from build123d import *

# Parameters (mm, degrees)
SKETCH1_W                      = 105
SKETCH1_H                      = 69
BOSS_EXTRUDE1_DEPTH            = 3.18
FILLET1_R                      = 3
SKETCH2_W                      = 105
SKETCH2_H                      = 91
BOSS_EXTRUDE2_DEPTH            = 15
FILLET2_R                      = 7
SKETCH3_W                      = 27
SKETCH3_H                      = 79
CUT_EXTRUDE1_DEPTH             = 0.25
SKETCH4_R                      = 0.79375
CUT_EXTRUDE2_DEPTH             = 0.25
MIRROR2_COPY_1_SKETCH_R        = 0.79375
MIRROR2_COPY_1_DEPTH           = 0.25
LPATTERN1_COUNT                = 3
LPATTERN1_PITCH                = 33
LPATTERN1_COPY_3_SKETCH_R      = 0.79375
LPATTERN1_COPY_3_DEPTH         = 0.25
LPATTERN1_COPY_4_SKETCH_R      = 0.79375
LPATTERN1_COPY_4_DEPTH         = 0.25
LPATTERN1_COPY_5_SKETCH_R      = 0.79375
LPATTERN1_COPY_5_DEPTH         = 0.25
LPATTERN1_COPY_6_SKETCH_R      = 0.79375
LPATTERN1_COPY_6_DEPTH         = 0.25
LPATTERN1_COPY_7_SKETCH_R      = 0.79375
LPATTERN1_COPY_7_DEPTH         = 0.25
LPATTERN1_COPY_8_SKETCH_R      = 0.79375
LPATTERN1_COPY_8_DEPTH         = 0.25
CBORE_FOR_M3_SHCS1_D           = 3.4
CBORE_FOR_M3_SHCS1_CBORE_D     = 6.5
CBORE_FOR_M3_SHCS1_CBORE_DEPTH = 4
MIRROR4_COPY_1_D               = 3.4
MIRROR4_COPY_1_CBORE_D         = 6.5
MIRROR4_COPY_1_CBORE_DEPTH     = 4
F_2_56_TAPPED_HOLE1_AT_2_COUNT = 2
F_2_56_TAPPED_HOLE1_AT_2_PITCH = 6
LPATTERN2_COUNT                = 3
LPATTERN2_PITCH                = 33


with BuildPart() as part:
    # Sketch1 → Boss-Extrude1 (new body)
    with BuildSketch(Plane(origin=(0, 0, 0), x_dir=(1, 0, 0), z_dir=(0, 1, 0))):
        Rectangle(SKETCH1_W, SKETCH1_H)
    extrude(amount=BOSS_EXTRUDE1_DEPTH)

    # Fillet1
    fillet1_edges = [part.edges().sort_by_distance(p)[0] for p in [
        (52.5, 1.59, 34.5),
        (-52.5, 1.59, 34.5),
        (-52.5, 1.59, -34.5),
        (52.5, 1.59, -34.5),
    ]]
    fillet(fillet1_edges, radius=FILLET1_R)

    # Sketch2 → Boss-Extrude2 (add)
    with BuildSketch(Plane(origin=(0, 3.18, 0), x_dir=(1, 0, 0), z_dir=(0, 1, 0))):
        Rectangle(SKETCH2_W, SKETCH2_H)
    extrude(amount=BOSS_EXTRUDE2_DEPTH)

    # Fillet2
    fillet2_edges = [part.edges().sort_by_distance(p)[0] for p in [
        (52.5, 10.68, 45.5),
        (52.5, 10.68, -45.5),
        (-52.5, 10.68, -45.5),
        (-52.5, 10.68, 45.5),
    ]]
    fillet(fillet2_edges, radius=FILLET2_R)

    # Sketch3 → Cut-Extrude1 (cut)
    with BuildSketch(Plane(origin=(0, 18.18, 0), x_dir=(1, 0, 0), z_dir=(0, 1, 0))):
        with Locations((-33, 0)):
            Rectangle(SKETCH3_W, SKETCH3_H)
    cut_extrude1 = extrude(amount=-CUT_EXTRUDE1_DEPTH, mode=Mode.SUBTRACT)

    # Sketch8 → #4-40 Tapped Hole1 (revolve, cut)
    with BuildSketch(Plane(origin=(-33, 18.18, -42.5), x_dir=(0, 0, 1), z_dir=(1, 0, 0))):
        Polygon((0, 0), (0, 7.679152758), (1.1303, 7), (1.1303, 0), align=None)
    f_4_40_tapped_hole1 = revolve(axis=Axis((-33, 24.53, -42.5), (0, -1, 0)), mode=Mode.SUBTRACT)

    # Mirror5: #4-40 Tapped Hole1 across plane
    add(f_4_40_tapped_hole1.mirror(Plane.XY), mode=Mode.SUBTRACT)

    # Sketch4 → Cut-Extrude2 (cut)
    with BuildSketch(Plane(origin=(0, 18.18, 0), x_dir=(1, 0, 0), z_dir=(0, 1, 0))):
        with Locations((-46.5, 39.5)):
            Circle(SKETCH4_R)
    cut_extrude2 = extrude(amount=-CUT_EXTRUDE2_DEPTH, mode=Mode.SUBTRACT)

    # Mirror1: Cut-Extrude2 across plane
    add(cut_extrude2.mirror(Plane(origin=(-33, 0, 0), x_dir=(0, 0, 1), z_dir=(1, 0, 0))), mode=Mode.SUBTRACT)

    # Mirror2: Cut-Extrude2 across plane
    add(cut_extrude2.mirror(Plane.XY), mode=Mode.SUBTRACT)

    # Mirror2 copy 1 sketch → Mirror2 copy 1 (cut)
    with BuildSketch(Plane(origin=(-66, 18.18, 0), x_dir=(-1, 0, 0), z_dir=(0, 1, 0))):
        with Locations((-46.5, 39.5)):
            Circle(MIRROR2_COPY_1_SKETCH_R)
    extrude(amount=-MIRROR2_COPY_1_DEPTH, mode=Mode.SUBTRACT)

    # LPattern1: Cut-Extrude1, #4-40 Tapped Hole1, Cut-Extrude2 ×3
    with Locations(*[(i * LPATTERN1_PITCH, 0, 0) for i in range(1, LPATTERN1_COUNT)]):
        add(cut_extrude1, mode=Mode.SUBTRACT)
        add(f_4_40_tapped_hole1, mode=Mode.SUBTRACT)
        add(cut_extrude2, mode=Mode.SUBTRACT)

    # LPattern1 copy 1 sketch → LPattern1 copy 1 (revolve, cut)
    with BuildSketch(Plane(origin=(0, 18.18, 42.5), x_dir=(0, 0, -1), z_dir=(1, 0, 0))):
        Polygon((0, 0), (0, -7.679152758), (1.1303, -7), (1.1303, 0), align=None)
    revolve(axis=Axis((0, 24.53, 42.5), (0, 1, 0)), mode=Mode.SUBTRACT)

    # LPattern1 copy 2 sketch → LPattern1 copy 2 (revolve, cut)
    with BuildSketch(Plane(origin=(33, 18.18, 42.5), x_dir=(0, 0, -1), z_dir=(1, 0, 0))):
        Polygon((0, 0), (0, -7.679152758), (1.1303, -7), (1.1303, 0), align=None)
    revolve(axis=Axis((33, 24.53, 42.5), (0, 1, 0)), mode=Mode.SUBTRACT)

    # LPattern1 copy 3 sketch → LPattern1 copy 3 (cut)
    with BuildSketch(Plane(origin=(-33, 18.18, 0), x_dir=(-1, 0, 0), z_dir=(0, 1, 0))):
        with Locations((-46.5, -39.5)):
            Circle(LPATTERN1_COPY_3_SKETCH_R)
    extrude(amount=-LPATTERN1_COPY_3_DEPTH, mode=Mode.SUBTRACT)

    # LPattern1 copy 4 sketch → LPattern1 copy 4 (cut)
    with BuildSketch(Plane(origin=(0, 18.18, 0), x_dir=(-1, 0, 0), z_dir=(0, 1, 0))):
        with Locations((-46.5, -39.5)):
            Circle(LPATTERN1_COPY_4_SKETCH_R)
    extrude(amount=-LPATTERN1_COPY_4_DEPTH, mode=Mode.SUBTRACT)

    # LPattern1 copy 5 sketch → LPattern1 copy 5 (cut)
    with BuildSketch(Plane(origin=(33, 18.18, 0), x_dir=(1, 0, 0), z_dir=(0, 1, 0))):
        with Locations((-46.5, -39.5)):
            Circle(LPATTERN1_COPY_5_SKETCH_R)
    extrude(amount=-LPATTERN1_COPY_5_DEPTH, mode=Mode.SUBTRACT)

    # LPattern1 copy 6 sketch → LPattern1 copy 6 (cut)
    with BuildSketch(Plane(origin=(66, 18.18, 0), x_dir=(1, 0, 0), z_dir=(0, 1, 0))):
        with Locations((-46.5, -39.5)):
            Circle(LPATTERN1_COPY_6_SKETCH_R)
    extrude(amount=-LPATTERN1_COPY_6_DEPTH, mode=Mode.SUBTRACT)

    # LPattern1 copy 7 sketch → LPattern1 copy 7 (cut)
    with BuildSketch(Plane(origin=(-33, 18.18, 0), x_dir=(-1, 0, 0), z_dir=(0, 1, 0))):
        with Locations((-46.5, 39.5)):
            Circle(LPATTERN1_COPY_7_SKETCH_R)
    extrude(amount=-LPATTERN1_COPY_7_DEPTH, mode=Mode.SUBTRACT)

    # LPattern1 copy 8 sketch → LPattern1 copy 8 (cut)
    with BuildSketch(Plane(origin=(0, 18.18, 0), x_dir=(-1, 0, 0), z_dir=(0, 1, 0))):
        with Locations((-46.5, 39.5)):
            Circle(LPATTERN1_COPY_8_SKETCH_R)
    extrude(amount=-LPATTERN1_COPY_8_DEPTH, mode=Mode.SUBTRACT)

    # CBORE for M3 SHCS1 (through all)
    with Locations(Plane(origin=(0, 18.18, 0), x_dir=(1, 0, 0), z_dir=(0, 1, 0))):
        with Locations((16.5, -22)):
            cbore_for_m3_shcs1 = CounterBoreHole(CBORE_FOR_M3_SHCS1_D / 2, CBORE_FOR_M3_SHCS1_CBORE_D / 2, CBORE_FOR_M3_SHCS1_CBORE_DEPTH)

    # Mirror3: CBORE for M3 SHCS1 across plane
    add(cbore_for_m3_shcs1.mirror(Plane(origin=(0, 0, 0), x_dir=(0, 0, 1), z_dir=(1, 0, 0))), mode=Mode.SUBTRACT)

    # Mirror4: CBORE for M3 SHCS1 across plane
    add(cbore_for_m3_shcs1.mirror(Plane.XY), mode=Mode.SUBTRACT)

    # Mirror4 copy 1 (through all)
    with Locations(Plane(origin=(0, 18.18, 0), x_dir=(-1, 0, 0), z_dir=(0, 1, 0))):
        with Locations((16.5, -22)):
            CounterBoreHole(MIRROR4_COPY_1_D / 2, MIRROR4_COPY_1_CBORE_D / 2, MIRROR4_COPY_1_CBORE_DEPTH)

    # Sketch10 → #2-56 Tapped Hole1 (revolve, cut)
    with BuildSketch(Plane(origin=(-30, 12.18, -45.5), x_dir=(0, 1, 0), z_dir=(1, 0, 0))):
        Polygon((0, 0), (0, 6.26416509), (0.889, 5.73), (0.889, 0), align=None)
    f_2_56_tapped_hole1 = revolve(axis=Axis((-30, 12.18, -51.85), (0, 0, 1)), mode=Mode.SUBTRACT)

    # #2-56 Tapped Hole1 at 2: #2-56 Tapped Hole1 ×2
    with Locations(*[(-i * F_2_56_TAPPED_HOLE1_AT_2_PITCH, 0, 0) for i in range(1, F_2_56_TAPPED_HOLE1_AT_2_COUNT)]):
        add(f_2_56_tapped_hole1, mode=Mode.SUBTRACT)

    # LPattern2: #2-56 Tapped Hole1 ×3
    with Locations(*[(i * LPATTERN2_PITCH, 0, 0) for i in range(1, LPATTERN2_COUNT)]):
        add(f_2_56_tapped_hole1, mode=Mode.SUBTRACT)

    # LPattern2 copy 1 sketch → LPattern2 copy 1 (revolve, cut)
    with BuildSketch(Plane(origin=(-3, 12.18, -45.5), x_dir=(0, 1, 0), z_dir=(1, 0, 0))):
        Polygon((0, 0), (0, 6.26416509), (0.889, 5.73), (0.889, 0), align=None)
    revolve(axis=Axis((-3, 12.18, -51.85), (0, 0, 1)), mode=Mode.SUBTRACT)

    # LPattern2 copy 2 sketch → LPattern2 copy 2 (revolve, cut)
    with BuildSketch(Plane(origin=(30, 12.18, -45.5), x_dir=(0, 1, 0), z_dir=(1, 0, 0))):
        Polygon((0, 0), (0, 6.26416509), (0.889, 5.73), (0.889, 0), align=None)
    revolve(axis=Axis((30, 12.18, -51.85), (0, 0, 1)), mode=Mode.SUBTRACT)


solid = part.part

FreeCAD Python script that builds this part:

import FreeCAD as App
import Part
import Sketcher

V = App.Vector
Q = App.Units.Quantity


def edges_at(feature, points):
    """Names of the edges that pass closest to the given points."""
    edges = feature.Shape.Edges
    near = lambda p: min(range(len(edges)), key=lambda i: edges[i].distToShape(Part.Vertex(*p))[0])
    return sorted({f"Edge{near(p) + 1}" for p in points})


def add_polygon(sketch, points):
    """Adds a closed chain of lines whose ends are joined by coincident constraints."""
    first, n = sketch.GeometryCount, len(points)
    for a, b in zip(points, points[1:] + points[:1]):
        sketch.addGeometry(Part.LineSegment(App.Vector(*a, 0), App.Vector(*b, 0)), False)
    for i in range(n):
        sketch.addConstraint(Sketcher.Constraint("Coincident", first + i, 2, first + (i + 1) % n, 1))

doc = App.newDocument("Part")
body = doc.addObject("PartDesign::Body", "Body")

# Sketch on XZ plane
sketch1 = doc.addObject("Sketcher::SketchObject", "Sketch")
body.addObject(sketch1)
sketch1.AttachmentSupport = (doc.XZ_Plane, [""])
sketch1.MapMode = "FlatFace"
add_polygon(sketch1, [(-52, -34), (-52, 34), (52, 34), (52, -34)])  # lines 0-3
sketch1.addConstraint(Sketcher.Constraint("Vertical", 0))
sketch1.addConstraint(Sketcher.Constraint("Horizontal", 1))
sketch1.addConstraint(Sketcher.Constraint("Vertical", 2))
sketch1.addConstraint(Sketcher.Constraint("Horizontal", 3))
sketch1.addConstraint(Sketcher.Constraint("Symmetric", 0, 2, 2, 2, -1, 1))
sketch1.addConstraint(Sketcher.Constraint("DistanceX", 1, 1, 1, 2, 105.0))
sketch1.addConstraint(Sketcher.Constraint("DistanceY", 0, 1, 0, 2, 69.0))
pad1 = doc.addObject("PartDesign::Pad", "Pad")
body.addObject(pad1)
pad1.Profile = sketch1
pad1.Length = 3.18
pad1.Reversed = True
doc.recompute()

fillet = doc.addObject("PartDesign::Fillet", "Fillet")
body.addObject(fillet)
fillet.Base = (pad1, edges_at(pad1, [
    (52.5, 1.59, 34.5),
    (-52.5, 1.59, 34.5),
    (-52.5, 1.59, -34.5),
    (52.5, 1.59, -34.5),
]))
fillet.Radius = 3

# Sketch on XZ plane
sketch2 = doc.addObject("Sketcher::SketchObject", "Sketch001")
body.addObject(sketch2)
sketch2.AttachmentSupport = (doc.XZ_Plane, [""])
sketch2.MapMode = "FlatFace"
sketch2.AttachmentOffset = App.Placement(V(0, 0, -3.18), App.Rotation())
add_polygon(sketch2, [(-52, -46), (-52, 46), (52, 46), (52, -46)])  # lines 0-3
sketch2.addConstraint(Sketcher.Constraint("Vertical", 0))
sketch2.addConstraint(Sketcher.Constraint("Horizontal", 1))
sketch2.addConstraint(Sketcher.Constraint("Vertical", 2))
sketch2.addConstraint(Sketcher.Constraint("Horizontal", 3))
sketch2.addConstraint(Sketcher.Constraint("Symmetric", 0, 2, 2, 2, -1, 1))
sketch2.addConstraint(Sketcher.Constraint("DistanceX", 1, 1, 1, 2, 105.0))
sketch2.addConstraint(Sketcher.Constraint("DistanceY", 0, 1, 0, 2, 91.0))
pad2 = doc.addObject("PartDesign::Pad", "Pad001")
body.addObject(pad2)
pad2.Profile = sketch2
pad2.Length = 15
pad2.Reversed = True
doc.recompute()

fillet2 = doc.addObject("PartDesign::Fillet", "Fillet001")
body.addObject(fillet2)
fillet2.Base = (pad2, edges_at(pad2, [
    (52.5, 10.68, 45.5),
    (52.5, 10.68, -45.5),
    (-52.5, 10.68, -45.5),
    (-52.5, 10.68, 45.5),
]))
fillet2.Radius = 7

# Sketch on XZ plane
sketch3 = doc.addObject("Sketcher::SketchObject", "Sketch002")
body.addObject(sketch3)
sketch3.AttachmentSupport = (doc.XZ_Plane, [""])
sketch3.MapMode = "FlatFace"
sketch3.AttachmentOffset = App.Placement(V(0, 0, -18.18), App.Rotation())
add_polygon(sketch3, [(-46, -40), (-46, 40), (-20, 40), (-20, -40)])  # lines 0-3
sketch3.addConstraint(Sketcher.Constraint("Vertical", 0))
sketch3.addConstraint(Sketcher.Constraint("Horizontal", 1))
sketch3.addConstraint(Sketcher.Constraint("Vertical", 2))
sketch3.addConstraint(Sketcher.Constraint("Horizontal", 3))
sketch3.addConstraint(Sketcher.Constraint("DistanceX", 1, 1, 1, 2, 27.0))
sketch3.addConstraint(Sketcher.Constraint("DistanceY", 0, 1, 0, 2, 79.0))
sketch3.addConstraint(Sketcher.Constraint("DistanceX", 0, 2, -1, 1, 46.5))
sketch3.addConstraint(Sketcher.Constraint("DistanceY", -1, 1, 0, 2, 39.5))
pocket1 = doc.addObject("PartDesign::Pocket", "Pocket")
body.addObject(pocket1)
pocket1.Profile = sketch3
pocket1.Length = 0.25
pocket1.Reversed = True

# Sketch on YZ plane
sketch4 = doc.addObject("Sketcher::SketchObject", "Sketch003")
body.addObject(sketch4)
sketch4.AttachmentSupport = (doc.YZ_Plane, [""])
sketch4.MapMode = "FlatFace"
sketch4.AttachmentOffset = App.Placement(V(0, 0, -33), App.Rotation())
add_polygon(sketch4, [(10.5, -42.5), (18.2, -42.5), (18.2, -41.4), (11.2, -41.4)])  # lines 0-3
sketch4.addGeometry(Part.LineSegment(V(18.2, -42.5, 0), V(10.5, -42.5, 0)), True)  # axis
sketch4.addConstraint(Sketcher.Constraint("Horizontal", 0))
sketch4.addConstraint(Sketcher.Constraint("Vertical", 1))
sketch4.addConstraint(Sketcher.Constraint("Horizontal", 2))
sketch4.addConstraint(Sketcher.Constraint("Horizontal", 4))
sketch4.addConstraint(Sketcher.Constraint("Coincident", 4, 1, 0, 2))
sketch4.addConstraint(Sketcher.Constraint("Equal", 0, 4))
sketch4.addConstraint(Sketcher.Constraint("DistanceX", 2, 2, 2, 1, 7.0))
sketch4.addConstraint(Sketcher.Constraint("Angle", 3, Q("-121 deg")))
sketch4.addConstraint(Sketcher.Constraint("DistanceY", 0, 2, -1, 1, 42.5))
sketch4.addConstraint(Sketcher.Constraint("DistanceX", -1, 1, 0, 2, 18.18))
sketch4.addConstraint(Sketcher.Constraint("DistanceY", 1, 1, 1, 2, 1.1303))
groove = doc.addObject("PartDesign::Groove", "Groove")
body.addObject(groove)
groove.Profile = sketch4
groove.ReferenceAxis = (sketch4, ["Axis0"])
groove.Angle = 360
doc.recompute()

mirrored = doc.addObject("PartDesign::Mirrored", "Mirrored")
body.addObject(mirrored)
mirrored.Originals = [groove]
mirrored.MirrorPlane = (doc.XY_Plane, [""])
body.Tip = mirrored

# Sketch on XZ plane
sketch5 = doc.addObject("Sketcher::SketchObject", "Sketch004")
body.addObject(sketch5)
sketch5.AttachmentSupport = (doc.XZ_Plane, [""])
sketch5.MapMode = "FlatFace"
sketch5.AttachmentOffset = App.Placement(V(0, 0, -18.18), App.Rotation())
sketch5.addGeometry(Part.Circle(V(-46.5, -39.5, 0), V(0, 0, 1), 0.8), False)
sketch5.addConstraint(Sketcher.Constraint("Diameter", 0, 1.5875))
sketch5.addConstraint(Sketcher.Constraint("DistanceX", 0, 3, -1, 1, 46.5))
sketch5.addConstraint(Sketcher.Constraint("DistanceY", 0, 3, -1, 1, 39.5))
pocket2 = doc.addObject("PartDesign::Pocket", "Pocket001")
body.addObject(pocket2)
pocket2.Profile = sketch5
pocket2.Length = 0.25
pocket2.Reversed = True
doc.recompute()

datumplane = doc.addObject("PartDesign::Plane", "DatumPlane")
body.addObject(datumplane)
datumplane.AttachmentSupport = (doc.YZ_Plane, [""])
datumplane.MapMode = "FlatFace"
datumplane.AttachmentOffset = App.Placement(V(0, 0, -33), App.Rotation())
mirrored2 = doc.addObject("PartDesign::Mirrored", "Mirrored001")
body.addObject(mirrored2)
mirrored2.Originals = [pocket2]
mirrored2.MirrorPlane = (datumplane, [""])
body.Tip = mirrored2
doc.recompute()

mirrored3 = doc.addObject("PartDesign::Mirrored", "Mirrored002")
body.addObject(mirrored3)
mirrored3.Originals = [pocket2]
mirrored3.MirrorPlane = (doc.XY_Plane, [""])
body.Tip = mirrored3

# Sketch on XZ plane
sketch6 = doc.addObject("Sketcher::SketchObject", "Sketch005")
body.addObject(sketch6)
sketch6.AttachmentSupport = (doc.XZ_Plane, [""])
sketch6.MapMode = "FlatFace"
sketch6.AttachmentOffset = App.Placement(V(0, 0, -18.18), App.Rotation())
sketch6.addGeometry(Part.Circle(V(-19.5, 39.5, 0), V(0, 0, 1), 0.8), False)
sketch6.addConstraint(Sketcher.Constraint("Diameter", 0, 1.5875))
sketch6.addConstraint(Sketcher.Constraint("DistanceX", 0, 3, -1, 1, 19.5))
sketch6.addConstraint(Sketcher.Constraint("DistanceY", -1, 1, 0, 3, 39.5))
pocket3 = doc.addObject("PartDesign::Pocket", "Pocket002")
body.addObject(pocket3)
pocket3.Profile = sketch6
pocket3.Length = 0.25
pocket3.Reversed = True
doc.recompute()

linearpattern = doc.addObject("PartDesign::LinearPattern", "LinearPattern")
body.addObject(linearpattern)
linearpattern.Originals = [pocket1, groove, pocket2]
linearpattern.Direction = (doc.X_Axis, [""])
linearpattern.Mode = "offset"
linearpattern.Offset = 33
linearpattern.Occurrences = 3
body.Tip = linearpattern

# Sketch on YZ plane
sketch7 = doc.addObject("Sketcher::SketchObject", "Sketch006")
body.addObject(sketch7)
sketch7.AttachmentSupport = (doc.YZ_Plane, [""])
sketch7.MapMode = "FlatFace"
add_polygon(sketch7, [(18.2, 42.5), (10.5, 42.5), (11.2, 41.4), (18.2, 41.4)])  # lines 0-3
sketch7.addGeometry(Part.LineSegment(V(10.5, 42.5, 0), V(18.2, 42.5, 0)), True)  # axis
sketch7.addConstraint(Sketcher.Constraint("Horizontal", 0))
sketch7.addConstraint(Sketcher.Constraint("Horizontal", 2))
sketch7.addConstraint(Sketcher.Constraint("Vertical", 3))
sketch7.addConstraint(Sketcher.Constraint("Horizontal", 4))
sketch7.addConstraint(Sketcher.Constraint("Coincident", 4, 1, 0, 2))
sketch7.addConstraint(Sketcher.Constraint("Vertical", 2, 2, 4, 2))
sketch7.addConstraint(Sketcher.Constraint("DistanceX", 2, 1, 2, 2, 7.0))
sketch7.addConstraint(Sketcher.Constraint("Angle", 1, Q("-59 deg")))
sketch7.addConstraint(Sketcher.Constraint("DistanceY", -1, 1, 0, 2, 42.5))
sketch7.addConstraint(Sketcher.Constraint("DistanceX", -1, 1, 1, 2, 11.18))
sketch7.addConstraint(Sketcher.Constraint("DistanceY", 3, 1, 3, 2, 1.1303))
groove2 = doc.addObject("PartDesign::Groove", "Groove001")
body.addObject(groove2)
groove2.Profile = sketch7
groove2.ReferenceAxis = (sketch7, ["Axis0"])
groove2.Angle = 360

# Sketch on YZ plane
sketch8 = doc.addObject("Sketcher::SketchObject", "Sketch007")
body.addObject(sketch8)
sketch8.AttachmentSupport = (doc.YZ_Plane, [""])
sketch8.MapMode = "FlatFace"
sketch8.AttachmentOffset = App.Placement(V(0, 0, 33), App.Rotation())
add_polygon(sketch8, [(18.2, 42.5), (10.5, 42.5), (11.2, 41.4), (18.2, 41.4)])  # lines 0-3
sketch8.addGeometry(Part.LineSegment(V(10.5, 42.5, 0), V(18.2, 42.5, 0)), True)  # axis
sketch8.addConstraint(Sketcher.Constraint("Horizontal", 0))
sketch8.addConstraint(Sketcher.Constraint("Horizontal", 2))
sketch8.addConstraint(Sketcher.Constraint("Vertical", 3))
sketch8.addConstraint(Sketcher.Constraint("Horizontal", 4))
sketch8.addConstraint(Sketcher.Constraint("Coincident", 4, 1, 0, 2))
sketch8.addConstraint(Sketcher.Constraint("Vertical", 2, 2, 4, 2))
sketch8.addConstraint(Sketcher.Constraint("DistanceX", 2, 1, 2, 2, 7.0))
sketch8.addConstraint(Sketcher.Constraint("Angle", 1, Q("-59 deg")))
sketch8.addConstraint(Sketcher.Constraint("DistanceY", -1, 1, 0, 2, 42.5))
sketch8.addConstraint(Sketcher.Constraint("DistanceX", -1, 1, 1, 2, 11.18))
sketch8.addConstraint(Sketcher.Constraint("DistanceY", 3, 1, 3, 2, 1.1303))
groove3 = doc.addObject("PartDesign::Groove", "Groove002")
body.addObject(groove3)
groove3.Profile = sketch8
groove3.ReferenceAxis = (sketch8, ["Axis0"])
groove3.Angle = 360

# Sketch on XZ plane
sketch9 = doc.addObject("Sketcher::SketchObject", "Sketch008")
body.addObject(sketch9)
sketch9.AttachmentSupport = (doc.XZ_Plane, [""])
sketch9.MapMode = "FlatFace"
sketch9.AttachmentOffset = App.Placement(V(0, 0, -18.18), App.Rotation())
sketch9.addGeometry(Part.Circle(V(13.5, -39.5, 0), V(0, 0, 1), 0.8), False)
sketch9.addConstraint(Sketcher.Constraint("Diameter", 0, 1.5875))
sketch9.addConstraint(Sketcher.Constraint("DistanceX", -1, 1, 0, 3, 13.5))
sketch9.addConstraint(Sketcher.Constraint("DistanceY", 0, 3, -1, 1, 39.5))
pocket4 = doc.addObject("PartDesign::Pocket", "Pocket003")
body.addObject(pocket4)
pocket4.Profile = sketch9
pocket4.Length = 0.25
pocket4.Reversed = True

# Sketch on XZ plane
sketch10 = doc.addObject("Sketcher::SketchObject", "Sketch009")
body.addObject(sketch10)
sketch10.AttachmentSupport = (doc.XZ_Plane, [""])
sketch10.MapMode = "FlatFace"
sketch10.AttachmentOffset = App.Placement(V(0, 0, -18.18), App.Rotation())
sketch10.addGeometry(Part.Circle(V(46.5, -39.5, 0), V(0, 0, 1), 0.8), False)
sketch10.addConstraint(Sketcher.Constraint("Diameter", 0, 1.5875))
sketch10.addConstraint(Sketcher.Constraint("DistanceX", -1, 1, 0, 3, 46.5))
sketch10.addConstraint(Sketcher.Constraint("DistanceY", 0, 3, -1, 1, 39.5))
pocket5 = doc.addObject("PartDesign::Pocket", "Pocket004")
body.addObject(pocket5)
pocket5.Profile = sketch10
pocket5.Length = 0.25
pocket5.Reversed = True

# Sketch on XZ plane
sketch11 = doc.addObject("Sketcher::SketchObject", "Sketch010")
body.addObject(sketch11)
sketch11.AttachmentSupport = (doc.XZ_Plane, [""])
sketch11.MapMode = "FlatFace"
sketch11.AttachmentOffset = App.Placement(V(0, 0, -18.18), App.Rotation())
sketch11.addGeometry(Part.Circle(V(-13.5, 39.5, 0), V(0, 0, 1), 0.8), False)
sketch11.addConstraint(Sketcher.Constraint("Diameter", 0, 1.5875))
sketch11.addConstraint(Sketcher.Constraint("DistanceX", 0, 3, -1, 1, 13.5))
sketch11.addConstraint(Sketcher.Constraint("DistanceY", -1, 1, 0, 3, 39.5))
pocket6 = doc.addObject("PartDesign::Pocket", "Pocket005")
body.addObject(pocket6)
pocket6.Profile = sketch11
pocket6.Length = 0.25
pocket6.Reversed = True

# Sketch on XZ plane
sketch12 = doc.addObject("Sketcher::SketchObject", "Sketch011")
body.addObject(sketch12)
sketch12.AttachmentSupport = (doc.XZ_Plane, [""])
sketch12.MapMode = "FlatFace"
sketch12.AttachmentOffset = App.Placement(V(0, 0, -18.18), App.Rotation())
sketch12.addGeometry(Part.Circle(V(19.5, 39.5, 0), V(0, 0, 1), 0.8), False)
sketch12.addConstraint(Sketcher.Constraint("Diameter", 0, 1.5875))
sketch12.addConstraint(Sketcher.Constraint("DistanceX", -1, 1, 0, 3, 19.5))
sketch12.addConstraint(Sketcher.Constraint("DistanceY", -1, 1, 0, 3, 39.5))
pocket7 = doc.addObject("PartDesign::Pocket", "Pocket006")
body.addObject(pocket7)
pocket7.Profile = sketch12
pocket7.Length = 0.25
pocket7.Reversed = True

# Sketch on XZ plane
sketch13 = doc.addObject("Sketcher::SketchObject", "Sketch012")
body.addObject(sketch13)
sketch13.AttachmentSupport = (doc.XZ_Plane, [""])
sketch13.MapMode = "FlatFace"
sketch13.AttachmentOffset = App.Placement(V(0, 0, -18.18), App.Rotation())
sketch13.addGeometry(Part.Circle(V(13.5, 39.5, 0), V(0, 0, 1), 0.8), False)
sketch13.addConstraint(Sketcher.Constraint("Diameter", 0, 1.5875))
sketch13.addConstraint(Sketcher.Constraint("DistanceX", -1, 1, 0, 3, 13.5))
sketch13.addConstraint(Sketcher.Constraint("DistanceY", -1, 1, 0, 3, 39.5))
pocket8 = doc.addObject("PartDesign::Pocket", "Pocket007")
body.addObject(pocket8)
pocket8.Profile = sketch13
pocket8.Length = 0.25
pocket8.Reversed = True

# Sketch on XZ plane
sketch14 = doc.addObject("Sketcher::SketchObject", "Sketch013")
body.addObject(sketch14)
sketch14.AttachmentSupport = (doc.XZ_Plane, [""])
sketch14.MapMode = "FlatFace"
sketch14.AttachmentOffset = App.Placement(V(0, 0, -18.18), App.Rotation())
sketch14.addGeometry(Part.Circle(V(46.5, 39.5, 0), V(0, 0, 1), 0.8), False)
sketch14.addConstraint(Sketcher.Constraint("Diameter", 0, 1.5875))
sketch14.addConstraint(Sketcher.Constraint("DistanceX", -1, 1, 0, 3, 46.5))
sketch14.addConstraint(Sketcher.Constraint("DistanceY", -1, 1, 0, 3, 39.5))
pocket9 = doc.addObject("PartDesign::Pocket", "Pocket008")
body.addObject(pocket9)
pocket9.Profile = sketch14
pocket9.Length = 0.25
pocket9.Reversed = True

# Sketch on XZ plane
sketch15 = doc.addObject("Sketcher::SketchObject", "Sketch014")
body.addObject(sketch15)
sketch15.AttachmentSupport = (doc.XZ_Plane, [""])
sketch15.MapMode = "FlatFace"
sketch15.AttachmentOffset = App.Placement(V(0, 0, -18.18), App.Rotation())
sketch15.addGeometry(Part.Circle(V(16.5, 22, 0), V(0, 0, 1), 1.7), False)
sketch15.addConstraint(Sketcher.Constraint("Diameter", 0, 3.4))
sketch15.addConstraint(Sketcher.Constraint("DistanceY", -1, 1, 0, 3, 22.0))
sketch15.addConstraint(Sketcher.Constraint("DistanceX", -1, 1, 0, 3, 16.5))
doc.recompute()
hole = doc.addObject("PartDesign::Hole", "Hole")
body.addObject(hole)
hole.Profile = sketch15
hole.ThreadType = "None"
hole.Diameter = 3.4
hole.DepthType = "ThroughAll"
hole.HoleCutType = "Counterbore"
hole.HoleCutDiameter = 6.5
hole.HoleCutDepth = 4
hole.Reversed = True
doc.recompute()

mirrored4 = doc.addObject("PartDesign::Mirrored", "Mirrored003")
body.addObject(mirrored4)
mirrored4.Originals = [hole]
mirrored4.MirrorPlane = (doc.YZ_Plane, [""])
body.Tip = mirrored4
doc.recompute()

mirrored5 = doc.addObject("PartDesign::Mirrored", "Mirrored004")
body.addObject(mirrored5)
mirrored5.Originals = [hole]
mirrored5.MirrorPlane = (doc.XY_Plane, [""])
body.Tip = mirrored5

# Sketch on XZ plane
sketch16 = doc.addObject("Sketcher::SketchObject", "Sketch015")
body.addObject(sketch16)
sketch16.AttachmentSupport = (doc.XZ_Plane, [""])
sketch16.MapMode = "FlatFace"
sketch16.AttachmentOffset = App.Placement(V(0, 0, -18.18), App.Rotation())
sketch16.addGeometry(Part.Circle(V(-16.5, -22, 0), V(0, 0, 1), 1.7), False)
sketch16.addConstraint(Sketcher.Constraint("Diameter", 0, 3.4))
sketch16.addConstraint(Sketcher.Constraint("DistanceY", 0, 3, -1, 1, 22.0))
sketch16.addConstraint(Sketcher.Constraint("DistanceX", 0, 3, -1, 1, 16.5))
doc.recompute()
hole2 = doc.addObject("PartDesign::Hole", "Hole001")
body.addObject(hole2)
hole2.Profile = sketch16
hole2.ThreadType = "None"
hole2.Diameter = 3.4
hole2.DepthType = "ThroughAll"
hole2.HoleCutType = "Counterbore"
hole2.HoleCutDiameter = 6.5
hole2.HoleCutDepth = 4
hole2.Reversed = True

# Sketch on YZ plane
sketch17 = doc.addObject("Sketcher::SketchObject", "Sketch016")
body.addObject(sketch17)
sketch17.AttachmentSupport = (doc.YZ_Plane, [""])
sketch17.MapMode = "FlatFace"
sketch17.AttachmentOffset = App.Placement(V(0, 0, -30), App.Rotation())
add_polygon(sketch17, [(12.2, -39.2), (12.2, -45.5), (13.1, -45.5), (13.1, -39.8)])  # lines 0-3
sketch17.addGeometry(Part.LineSegment(V(12.2, -45.5, 0), V(12.2, -39.2, 0)), True)  # axis
sketch17.addConstraint(Sketcher.Constraint("Vertical", 0))
sketch17.addConstraint(Sketcher.Constraint("Horizontal", 1))
sketch17.addConstraint(Sketcher.Constraint("Vertical", 2))
sketch17.addConstraint(Sketcher.Constraint("Vertical", 4))
sketch17.addConstraint(Sketcher.Constraint("Coincident", 4, 1, 0, 2))
sketch17.addConstraint(Sketcher.Constraint("Equal", 0, 4))
sketch17.addConstraint(Sketcher.Constraint("Angle", 3, Q("149 deg")))
sketch17.addConstraint(Sketcher.Constraint("DistanceY", 2, 1, 2, 2, 5.73))
sketch17.addConstraint(Sketcher.Constraint("DistanceY", 0, 2, -1, 1, 45.5))
sketch17.addConstraint(Sketcher.Constraint("DistanceX", 1, 1, 1, 2, 0.889))
sketch17.addConstraint(Sketcher.Constraint("DistanceX", -1, 1, 0, 2, 12.18))
groove4 = doc.addObject("PartDesign::Groove", "Groove003")
body.addObject(groove4)
groove4.Profile = sketch17
groove4.ReferenceAxis = (sketch17, ["Axis0"])
groove4.Angle = 360
doc.recompute()

linearpattern2 = doc.addObject("PartDesign::LinearPattern", "LinearPattern001")
body.addObject(linearpattern2)
linearpattern2.Originals = [groove4]
linearpattern2.Direction = (doc.X_Axis, [""])
linearpattern2.Mode = "offset"
linearpattern2.Offset = 6
linearpattern2.Occurrences = 2
linearpattern2.Reversed = True
body.Tip = linearpattern2
doc.recompute()

linearpattern3 = doc.addObject("PartDesign::LinearPattern", "LinearPattern002")
body.addObject(linearpattern3)
linearpattern3.Originals = [groove4]
linearpattern3.Direction = (doc.X_Axis, [""])
linearpattern3.Mode = "offset"
linearpattern3.Offset = 33
linearpattern3.Occurrences = 3
body.Tip = linearpattern3

# Sketch on YZ plane
sketch18 = doc.addObject("Sketcher::SketchObject", "Sketch017")
body.addObject(sketch18)
sketch18.AttachmentSupport = (doc.YZ_Plane, [""])
sketch18.MapMode = "FlatFace"
sketch18.AttachmentOffset = App.Placement(V(0, 0, -3), App.Rotation())
add_polygon(sketch18, [(12.2, -39.2), (12.2, -45.5), (13.1, -45.5), (13.1, -39.8)])  # lines 0-3
sketch18.addGeometry(Part.LineSegment(V(12.2, -45.5, 0), V(12.2, -39.2, 0)), True)  # axis
sketch18.addConstraint(Sketcher.Constraint("Vertical", 0))
sketch18.addConstraint(Sketcher.Constraint("Horizontal", 1))
sketch18.addConstraint(Sketcher.Constraint("Vertical", 2))
sketch18.addConstraint(Sketcher.Constraint("Vertical", 4))
sketch18.addConstraint(Sketcher.Constraint("Coincident", 4, 1, 0, 2))
sketch18.addConstraint(Sketcher.Constraint("Equal", 0, 4))
sketch18.addConstraint(Sketcher.Constraint("Angle", 3, Q("149 deg")))
sketch18.addConstraint(Sketcher.Constraint("DistanceY", 2, 1, 2, 2, 5.73))
sketch18.addConstraint(Sketcher.Constraint("DistanceY", 0, 2, -1, 1, 45.5))
sketch18.addConstraint(Sketcher.Constraint("DistanceX", 1, 1, 1, 2, 0.889))
sketch18.addConstraint(Sketcher.Constraint("DistanceX", -1, 1, 0, 2, 12.18))
groove5 = doc.addObject("PartDesign::Groove", "Groove004")
body.addObject(groove5)
groove5.Profile = sketch18
groove5.ReferenceAxis = (sketch18, ["Axis0"])
groove5.Angle = 360

# Sketch on YZ plane
sketch19 = doc.addObject("Sketcher::SketchObject", "Sketch018")
body.addObject(sketch19)
sketch19.AttachmentSupport = (doc.YZ_Plane, [""])
sketch19.MapMode = "FlatFace"
sketch19.AttachmentOffset = App.Placement(V(0, 0, 30), App.Rotation())
add_polygon(sketch19, [(12.2, -39.2), (12.2, -45.5), (13.1, -45.5), (13.1, -39.8)])  # lines 0-3
sketch19.addGeometry(Part.LineSegment(V(12.2, -45.5, 0), V(12.2, -39.2, 0)), True)  # axis
sketch19.addConstraint(Sketcher.Constraint("Vertical", 0))
sketch19.addConstraint(Sketcher.Constraint("Horizontal", 1))
sketch19.addConstraint(Sketcher.Constraint("Vertical", 2))
sketch19.addConstraint(Sketcher.Constraint("Vertical", 4))
sketch19.addConstraint(Sketcher.Constraint("Coincident", 4, 1, 0, 2))
sketch19.addConstraint(Sketcher.Constraint("Equal", 0, 4))
sketch19.addConstraint(Sketcher.Constraint("Angle", 3, Q("149 deg")))
sketch19.addConstraint(Sketcher.Constraint("DistanceY", 2, 1, 2, 2, 5.73))
sketch19.addConstraint(Sketcher.Constraint("DistanceY", 0, 2, -1, 1, 45.5))
sketch19.addConstraint(Sketcher.Constraint("DistanceX", 1, 1, 1, 2, 0.889))
sketch19.addConstraint(Sketcher.Constraint("DistanceX", -1, 1, 0, 2, 12.18))
groove6 = doc.addObject("PartDesign::Groove", "Groove005")
body.addObject(groove6)
groove6.Profile = sketch19
groove6.ReferenceAxis = (sketch19, ["Axis0"])
groove6.Angle = 360

doc.recompute()
